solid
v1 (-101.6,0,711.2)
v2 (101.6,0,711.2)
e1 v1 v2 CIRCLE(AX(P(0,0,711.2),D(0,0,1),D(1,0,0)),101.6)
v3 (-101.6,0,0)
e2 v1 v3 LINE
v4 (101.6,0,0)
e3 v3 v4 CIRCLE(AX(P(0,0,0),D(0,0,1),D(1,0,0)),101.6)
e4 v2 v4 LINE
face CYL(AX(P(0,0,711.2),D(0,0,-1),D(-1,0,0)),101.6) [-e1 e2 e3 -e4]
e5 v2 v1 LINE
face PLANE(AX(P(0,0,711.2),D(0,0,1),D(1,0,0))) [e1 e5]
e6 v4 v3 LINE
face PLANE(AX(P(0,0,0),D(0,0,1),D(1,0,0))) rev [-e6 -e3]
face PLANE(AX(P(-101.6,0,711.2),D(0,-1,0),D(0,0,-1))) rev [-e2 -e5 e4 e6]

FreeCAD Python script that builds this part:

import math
import FreeCAD as App
import Part
import Sketcher
from FreeCAD import Vector
Q = App.Units.Quantity

doc = App.newDocument("Part")
body = doc.addObject("PartDesign::Body", "Body")

# Sketch on XY plane
sketch1 = doc.addObject("Sketcher::SketchObject", "Sketch")
body.addObject(sketch1)
sketch1.AttachmentSupport = (doc.XY_Plane, [""])
sketch1.MapMode = "FlatFace"
sketch1.addGeometry(Part.LineSegment(Vector(102, 0, 0), Vector(-102, 0, 0)), False)
sketch1.addGeometry(Part.ArcOfCircle(Part.Circle(Vector(0, 0, 0), Vector(0, 0, 1), 102), math.radians(180), math.radians(360)), False)
sketch1.addConstraint(Sketcher.Constraint("Coincident", 0, 1, 1, 2))
sketch1.addConstraint(Sketcher.Constraint("Coincident", 1, 1, 0, 2))
sketch1.addConstraint(Sketcher.Constraint("Horizontal", 0))
sketch1.addConstraint(Sketcher.Constraint("Coincident", 1, 3, -1, 1))
sketch1.addConstraint(Sketcher.Constraint("PointOnObject", 0, 1, -1))
sketch1.addConstraint(Sketcher.Constraint("Radius", 1, Q("4 in")))
pad1 = doc.addObject("PartDesign::Pad", "Pad")
body.addObject(pad1)
pad1.Profile = sketch1
pad1.Length = Q("28 in")

doc.recompute()
